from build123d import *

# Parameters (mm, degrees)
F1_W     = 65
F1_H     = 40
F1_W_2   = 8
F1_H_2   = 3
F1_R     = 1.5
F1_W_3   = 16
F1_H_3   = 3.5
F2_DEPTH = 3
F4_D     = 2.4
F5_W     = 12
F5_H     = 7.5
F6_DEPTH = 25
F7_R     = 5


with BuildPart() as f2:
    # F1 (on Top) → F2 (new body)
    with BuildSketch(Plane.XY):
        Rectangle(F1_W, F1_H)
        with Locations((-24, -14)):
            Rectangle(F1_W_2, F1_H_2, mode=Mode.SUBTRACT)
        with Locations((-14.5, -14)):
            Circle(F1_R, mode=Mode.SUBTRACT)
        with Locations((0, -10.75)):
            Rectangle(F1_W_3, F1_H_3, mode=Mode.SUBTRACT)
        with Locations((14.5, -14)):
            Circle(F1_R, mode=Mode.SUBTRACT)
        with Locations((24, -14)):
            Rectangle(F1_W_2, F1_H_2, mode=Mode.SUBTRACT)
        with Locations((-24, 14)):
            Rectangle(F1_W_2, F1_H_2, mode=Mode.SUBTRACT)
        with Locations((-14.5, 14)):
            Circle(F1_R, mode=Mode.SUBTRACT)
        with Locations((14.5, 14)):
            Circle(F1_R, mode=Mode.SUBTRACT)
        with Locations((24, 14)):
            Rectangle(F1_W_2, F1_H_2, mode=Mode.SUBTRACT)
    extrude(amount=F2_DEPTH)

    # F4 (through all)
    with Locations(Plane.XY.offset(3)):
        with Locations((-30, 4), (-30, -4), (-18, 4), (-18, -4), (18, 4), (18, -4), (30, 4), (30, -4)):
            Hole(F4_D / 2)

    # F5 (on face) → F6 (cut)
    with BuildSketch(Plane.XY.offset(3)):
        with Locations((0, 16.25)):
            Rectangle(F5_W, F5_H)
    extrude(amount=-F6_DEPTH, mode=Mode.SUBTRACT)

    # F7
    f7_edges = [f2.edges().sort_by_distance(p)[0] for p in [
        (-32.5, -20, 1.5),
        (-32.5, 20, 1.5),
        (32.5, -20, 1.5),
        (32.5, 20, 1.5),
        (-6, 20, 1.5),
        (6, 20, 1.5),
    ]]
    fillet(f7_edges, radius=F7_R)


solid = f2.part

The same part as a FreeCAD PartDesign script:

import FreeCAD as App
import Part
import Sketcher
from FreeCAD import Vector
Q = App.Units.Quantity


def edges_at(feature, points):
    """Names of the edges that pass closest to the given points."""
    edges = feature.Shape.Edges
    near = lambda p: min(range(len(edges)), key=lambda i: edges[i].distToShape(Part.Vertex(*p))[0])
    return sorted({f"Edge{near(p) + 1}" for p in points})


def add_polygon(sketch, points):
    """Adds a closed chain of lines whose ends are joined by coincident constraints."""
    first, n = sketch.GeometryCount, len(points)
    for a, b in zip(points, points[1:] + points[:1]):
        sketch.addGeometry(Part.LineSegment(App.Vector(*a, 0), App.Vector(*b, 0)), False)
    for i in range(n):
        sketch.addConstraint(Sketcher.Constraint("Coincident", first + i, 2, first + (i + 1) % n, 1))

doc = App.newDocument("Part")
body = doc.addObject("PartDesign::Body", "Body")

# Sketch on XY plane
sketch1 = body.newObject("Sketcher::SketchObject", "Sketch")
sketch1.AttachmentSupport = (doc.getObject("XY_Plane"), [""])
sketch1.MapMode = "FlatFace"
add_polygon(sketch1, [(-32.5, 20), (-32.5, -20), (32.5, -20), (32.5, 20)])  # lines 0-3
add_polygon(sketch1, [(-20, -15.5), (-28, -15.5), (-28, -12.5), (-20, -12.5)])  # lines 4-7
sketch1.addGeometry(Part.Circle(Vector(-14.5, -14, 0), Vector(0, 0, 1), 1.5), False)  # 8
add_polygon(sketch1, [(8, -12.5), (-8, -12.5), (-8, -9), (8, -9)])  # lines 9-12
sketch1.addGeometry(Part.Circle(Vector(14.5, -14, 0), Vector(0, 0, 1), 1.5), False)  # 13
add_polygon(sketch1, [(28, -15.5), (20, -15.5), (20, -12.5), (28, -12.5)])  # lines 14-17
add_polygon(sketch1, [(-20, 12.5), (-28, 12.5), (-28, 15.5), (-20, 15.5)])  # lines 18-21
sketch1.addGeometry(Part.Circle(Vector(-14.5, 14, 0), Vector(0, 0, 1), 1.5), False)  # 22
sketch1.addGeometry(Part.Circle(Vector(14.5, 14, 0), Vector(0, 0, 1), 1.5), False)  # 23
add_polygon(sketch1, [(28, 12.5), (20, 12.5), (20, 15.5), (28, 15.5)])  # lines 24-27
sketch1.addConstraint(Sketcher.Constraint("Vertical", 0))
sketch1.addConstraint(Sketcher.Constraint("Horizontal", 1))
sketch1.addConstraint(Sketcher.Constraint("Vertical", 2))
sketch1.addConstraint(Sketcher.Constraint("Horizontal", 3))
sketch1.addConstraint(Sketcher.Constraint("Horizontal", 4))
sketch1.addConstraint(Sketcher.Constraint("Vertical", 5))
sketch1.addConstraint(Sketcher.Constraint("Horizontal", 6))
sketch1.addConstraint(Sketcher.Constraint("Vertical", 7))
sketch1.addConstraint(Sketcher.Constraint("Horizontal", 9))
sketch1.addConstraint(Sketcher.Constraint("Vertical", 10))
sketch1.addConstraint(Sketcher.Constraint("Horizontal", 11))
sketch1.addConstraint(Sketcher.Constraint("Vertical", 12))
sketch1.addConstraint(Sketcher.Constraint("Horizontal", 14))
sketch1.addConstraint(Sketcher.Constraint("Vertical", 15))
sketch1.addConstraint(Sketcher.Constraint("Horizontal", 16))
sketch1.addConstraint(Sketcher.Constraint("Vertical", 17))
sketch1.addConstraint(Sketcher.Constraint("Horizontal", 18))
sketch1.addConstraint(Sketcher.Constraint("Vertical", 19))
sketch1.addConstraint(Sketcher.Constraint("Horizontal", 20))
sketch1.addConstraint(Sketcher.Constraint("Vertical", 21))
sketch1.addConstraint(Sketcher.Constraint("Horizontal", 24))
sketch1.addConstraint(Sketcher.Constraint("Vertical", 25))
sketch1.addConstraint(Sketcher.Constraint("Horizontal", 26))
sketch1.addConstraint(Sketcher.Constraint("Vertical", 27))
sketch1.addConstraint(Sketcher.Constraint("Equal", 8, 13))
sketch1.addConstraint(Sketcher.Constraint("Equal", 13, 22))
sketch1.addConstraint(Sketcher.Constraint("Equal", 22, 23))
sketch1.addConstraint(Sketcher.Constraint("Symmetric", 13, 3, 22, 3, -1, 1))
sketch1.addConstraint(Sketcher.Constraint("Symmetric", 8, 3, 23, 3, -1, 1))
sketch1.addConstraint(Sketcher.Constraint("Symmetric", 0, 2, 2, 2, -1, 1))
sketch1.addConstraint(Sketcher.Constraint("Symmetric", 16, 2, 18, 2, -1, 1))
sketch1.addConstraint(Sketcher.Constraint("Symmetric", 14, 2, 20, 2, -1, 1))
sketch1.addConstraint(Sketcher.Constraint("Symmetric", 6, 2, 24, 2, -1, 1))
sketch1.addConstraint(Sketcher.Constraint("Symmetric", 4, 2, 26, 2, -1, 1))
sketch1.addConstraint(Sketcher.Constraint("Symmetric", 8, 3, 13, 3, -2))
sketch1.addConstraint(Sketcher.Constraint("Symmetric", 7, 2, 14, 2, -2))
sketch1.addConstraint(Sketcher.Constraint("Symmetric", 5, 2, 16, 2, -2))
sketch1.addConstraint(Sketcher.Constraint("Horizontal", 6, 2, 9, 2))
sketch1.addConstraint(Sketcher.Constraint("Diameter", 8, Q("3 mm")))
sketch1.addConstraint(Sketcher.Constraint("DistanceX", 1, 1, 1, 2, Q("65 mm")))
sketch1.addConstraint(Sketcher.Constraint("DistanceX", 4, 2, 4, 1, Q("8 mm")))
sketch1.addConstraint(Sketcher.Constraint("DistanceX", 9, 2, 9, 1, Q("16 mm")))
sketch1.addConstraint(Sketcher.Constraint("DistanceY", 0, 2, 0, 1, Q("40 mm")))
sketch1.addConstraint(Sketcher.Constraint("DistanceY", 5, 1, 5, 2, Q("3 mm")))
sketch1.addConstraint(Sketcher.Constraint("DistanceY", 10, 1, 10, 2, Q("3.5 mm")))
sketch1.addConstraint(Sketcher.Constraint("DistanceY", 8, 3, -1, 1, Q("14 mm")))
sketch1.addConstraint(Sketcher.Constraint("DistanceX", 4, 2, -1, 1, Q("28 mm")))
sketch1.addConstraint(Sketcher.Constraint("DistanceX", 9, 2, -1, 1, Q("8 mm")))
sketch1.addConstraint(Sketcher.Constraint("DistanceY", 10, 2, -1, 1, Q("9 mm")))
sketch1.addConstraint(Sketcher.Constraint("DistanceX", 8, 3, 13, 3, Q("29 mm")))
pad1 = body.newObject("PartDesign::Pad", "Pad")
pad1.Profile = sketch1
pad1.Length = 3

# Sketch on XY plane
sketch2 = body.newObject("Sketcher::SketchObject", "Sketch001")
sketch2.AttachmentSupport = (doc.getObject("XY_Plane"), [""])
sketch2.MapMode = "FlatFace"
sketch2.AttachmentOffset = App.Placement(Vector(0, 0, 3), App.Rotation())
sketch2.addGeometry(Part.Circle(Vector(-30, 4, 0), Vector(0, 0, 1), 1.2), False)
sketch2.addGeometry(Part.Circle(Vector(-30, -4, 0), Vector(0, 0, 1), 1.2), False)
sketch2.addGeometry(Part.Circle(Vector(-18, 4, 0), Vector(0, 0, 1), 1.2), False)
sketch2.addGeometry(Part.Circle(Vector(-18, -4, 0), Vector(0, 0, 1), 1.2), False)
sketch2.addGeometry(Part.Circle(Vector(18, 4, 0), Vector(0, 0, 1), 1.2), False)
sketch2.addGeometry(Part.Circle(Vector(18, -4, 0), Vector(0, 0, 1), 1.2), False)
sketch2.addGeometry(Part.Circle(Vector(30, 4, 0), Vector(0, 0, 1), 1.2), False)
sketch2.addGeometry(Part.Circle(Vector(30, -4, 0), Vector(0, 0, 1), 1.2), False)
sketch2.addConstraint(Sketcher.Constraint("Equal", 0, 1))
sketch2.addConstraint(Sketcher.Constraint("Equal", 1, 2))
sketch2.addConstraint(Sketcher.Constraint("Equal", 2, 3))
sketch2.addConstraint(Sketcher.Constraint("Equal", 3, 4))
sketch2.addConstraint(Sketcher.Constraint("Equal", 4, 5))
sketch2.addConstraint(Sketcher.Constraint("Equal", 5, 6))
sketch2.addConstraint(Sketcher.Constraint("Equal", 6, 7))
sketch2.addConstraint(Sketcher.Constraint("Symmetric", 3, 3, 4, 3, -1, 1))
sketch2.addConstraint(Sketcher.Constraint("Symmetric", 2, 3, 5, 3, -1, 1))
sketch2.addConstraint(Sketcher.Constraint("Symmetric", 1, 3, 6, 3, -1, 1))
sketch2.addConstraint(Sketcher.Constraint("Symmetric", 0, 3, 7, 3, -1, 1))
sketch2.addConstraint(Sketcher.Constraint("Symmetric", 2, 3, 4, 3, -2))
sketch2.addConstraint(Sketcher.Constraint("Symmetric", 0, 3, 6, 3, -2))
sketch2.addConstraint(Sketcher.Constraint("Horizontal", 0, 3, 2, 3))
sketch2.addConstraint(Sketcher.Constraint("Diameter", 0, Q("2.4 mm")))
sketch2.addConstraint(Sketcher.Constraint("DistanceX", 0, 3, -1, 1, Q("30 mm")))
sketch2.addConstraint(Sketcher.Constraint("DistanceY", -1, 1, 0, 3, Q("4 mm")))
sketch2.addConstraint(Sketcher.Constraint("DistanceX", 2, 3, -1, 1, Q("18 mm")))
doc.recompute()
hole = body.newObject("PartDesign::Hole", "Hole")
hole.Profile = sketch2
hole.ThreadType = "None"
hole.Diameter = 2.4
hole.DepthType = "ThroughAll"

# Sketch on XY plane
sketch3 = body.newObject("Sketcher::SketchObject", "Sketch002")
sketch3.AttachmentSupport = (doc.getObject("XY_Plane"), [""])
sketch3.MapMode = "FlatFace"
sketch3.AttachmentOffset = App.Placement(Vector(0, 0, 3), App.Rotation())
add_polygon(sketch3, [(-6, 20), (-6, 12.5), (6, 12.5), (6, 20)])  # lines 0-3
sketch3.addConstraint(Sketcher.Constraint("Vertical", 0))
sketch3.addConstraint(Sketcher.Constraint("Horizontal", 1))
sketch3.addConstraint(Sketcher.Constraint("Vertical", 2))
sketch3.addConstraint(Sketcher.Constraint("Horizontal", 3))
sketch3.addConstraint(Sketcher.Constraint("DistanceX", 1, 1, 1, 2, Q("12 mm")))
sketch3.addConstraint(Sketcher.Constraint("DistanceY", 0, 2, 0, 1, Q("7.5 mm")))
sketch3.addConstraint(Sketcher.Constraint("DistanceX", 0, 2, -1, 1, Q("6 mm")))
sketch3.addConstraint(Sketcher.Constraint("DistanceY", -1, 1, 2, 2, Q("20 mm")))
pocket1 = body.newObject("PartDesign::Pocket", "Pocket")
pocket1.Profile = sketch3
pocket1.Length = 25
doc.recompute()

fillet = body.newObject("PartDesign::Fillet", "Fillet")
fillet.Base = (pocket1, edges_at(pocket1, [
    (-32.5, -20, 1.5),
    (-32.5, 20, 1.5),
    (32.5, -20, 1.5),
    (32.5, 20, 1.5),
    (-6, 20, 1.5),
    (6, 20, 1.5),
]))
fillet.Radius = 5

doc.recompute()
